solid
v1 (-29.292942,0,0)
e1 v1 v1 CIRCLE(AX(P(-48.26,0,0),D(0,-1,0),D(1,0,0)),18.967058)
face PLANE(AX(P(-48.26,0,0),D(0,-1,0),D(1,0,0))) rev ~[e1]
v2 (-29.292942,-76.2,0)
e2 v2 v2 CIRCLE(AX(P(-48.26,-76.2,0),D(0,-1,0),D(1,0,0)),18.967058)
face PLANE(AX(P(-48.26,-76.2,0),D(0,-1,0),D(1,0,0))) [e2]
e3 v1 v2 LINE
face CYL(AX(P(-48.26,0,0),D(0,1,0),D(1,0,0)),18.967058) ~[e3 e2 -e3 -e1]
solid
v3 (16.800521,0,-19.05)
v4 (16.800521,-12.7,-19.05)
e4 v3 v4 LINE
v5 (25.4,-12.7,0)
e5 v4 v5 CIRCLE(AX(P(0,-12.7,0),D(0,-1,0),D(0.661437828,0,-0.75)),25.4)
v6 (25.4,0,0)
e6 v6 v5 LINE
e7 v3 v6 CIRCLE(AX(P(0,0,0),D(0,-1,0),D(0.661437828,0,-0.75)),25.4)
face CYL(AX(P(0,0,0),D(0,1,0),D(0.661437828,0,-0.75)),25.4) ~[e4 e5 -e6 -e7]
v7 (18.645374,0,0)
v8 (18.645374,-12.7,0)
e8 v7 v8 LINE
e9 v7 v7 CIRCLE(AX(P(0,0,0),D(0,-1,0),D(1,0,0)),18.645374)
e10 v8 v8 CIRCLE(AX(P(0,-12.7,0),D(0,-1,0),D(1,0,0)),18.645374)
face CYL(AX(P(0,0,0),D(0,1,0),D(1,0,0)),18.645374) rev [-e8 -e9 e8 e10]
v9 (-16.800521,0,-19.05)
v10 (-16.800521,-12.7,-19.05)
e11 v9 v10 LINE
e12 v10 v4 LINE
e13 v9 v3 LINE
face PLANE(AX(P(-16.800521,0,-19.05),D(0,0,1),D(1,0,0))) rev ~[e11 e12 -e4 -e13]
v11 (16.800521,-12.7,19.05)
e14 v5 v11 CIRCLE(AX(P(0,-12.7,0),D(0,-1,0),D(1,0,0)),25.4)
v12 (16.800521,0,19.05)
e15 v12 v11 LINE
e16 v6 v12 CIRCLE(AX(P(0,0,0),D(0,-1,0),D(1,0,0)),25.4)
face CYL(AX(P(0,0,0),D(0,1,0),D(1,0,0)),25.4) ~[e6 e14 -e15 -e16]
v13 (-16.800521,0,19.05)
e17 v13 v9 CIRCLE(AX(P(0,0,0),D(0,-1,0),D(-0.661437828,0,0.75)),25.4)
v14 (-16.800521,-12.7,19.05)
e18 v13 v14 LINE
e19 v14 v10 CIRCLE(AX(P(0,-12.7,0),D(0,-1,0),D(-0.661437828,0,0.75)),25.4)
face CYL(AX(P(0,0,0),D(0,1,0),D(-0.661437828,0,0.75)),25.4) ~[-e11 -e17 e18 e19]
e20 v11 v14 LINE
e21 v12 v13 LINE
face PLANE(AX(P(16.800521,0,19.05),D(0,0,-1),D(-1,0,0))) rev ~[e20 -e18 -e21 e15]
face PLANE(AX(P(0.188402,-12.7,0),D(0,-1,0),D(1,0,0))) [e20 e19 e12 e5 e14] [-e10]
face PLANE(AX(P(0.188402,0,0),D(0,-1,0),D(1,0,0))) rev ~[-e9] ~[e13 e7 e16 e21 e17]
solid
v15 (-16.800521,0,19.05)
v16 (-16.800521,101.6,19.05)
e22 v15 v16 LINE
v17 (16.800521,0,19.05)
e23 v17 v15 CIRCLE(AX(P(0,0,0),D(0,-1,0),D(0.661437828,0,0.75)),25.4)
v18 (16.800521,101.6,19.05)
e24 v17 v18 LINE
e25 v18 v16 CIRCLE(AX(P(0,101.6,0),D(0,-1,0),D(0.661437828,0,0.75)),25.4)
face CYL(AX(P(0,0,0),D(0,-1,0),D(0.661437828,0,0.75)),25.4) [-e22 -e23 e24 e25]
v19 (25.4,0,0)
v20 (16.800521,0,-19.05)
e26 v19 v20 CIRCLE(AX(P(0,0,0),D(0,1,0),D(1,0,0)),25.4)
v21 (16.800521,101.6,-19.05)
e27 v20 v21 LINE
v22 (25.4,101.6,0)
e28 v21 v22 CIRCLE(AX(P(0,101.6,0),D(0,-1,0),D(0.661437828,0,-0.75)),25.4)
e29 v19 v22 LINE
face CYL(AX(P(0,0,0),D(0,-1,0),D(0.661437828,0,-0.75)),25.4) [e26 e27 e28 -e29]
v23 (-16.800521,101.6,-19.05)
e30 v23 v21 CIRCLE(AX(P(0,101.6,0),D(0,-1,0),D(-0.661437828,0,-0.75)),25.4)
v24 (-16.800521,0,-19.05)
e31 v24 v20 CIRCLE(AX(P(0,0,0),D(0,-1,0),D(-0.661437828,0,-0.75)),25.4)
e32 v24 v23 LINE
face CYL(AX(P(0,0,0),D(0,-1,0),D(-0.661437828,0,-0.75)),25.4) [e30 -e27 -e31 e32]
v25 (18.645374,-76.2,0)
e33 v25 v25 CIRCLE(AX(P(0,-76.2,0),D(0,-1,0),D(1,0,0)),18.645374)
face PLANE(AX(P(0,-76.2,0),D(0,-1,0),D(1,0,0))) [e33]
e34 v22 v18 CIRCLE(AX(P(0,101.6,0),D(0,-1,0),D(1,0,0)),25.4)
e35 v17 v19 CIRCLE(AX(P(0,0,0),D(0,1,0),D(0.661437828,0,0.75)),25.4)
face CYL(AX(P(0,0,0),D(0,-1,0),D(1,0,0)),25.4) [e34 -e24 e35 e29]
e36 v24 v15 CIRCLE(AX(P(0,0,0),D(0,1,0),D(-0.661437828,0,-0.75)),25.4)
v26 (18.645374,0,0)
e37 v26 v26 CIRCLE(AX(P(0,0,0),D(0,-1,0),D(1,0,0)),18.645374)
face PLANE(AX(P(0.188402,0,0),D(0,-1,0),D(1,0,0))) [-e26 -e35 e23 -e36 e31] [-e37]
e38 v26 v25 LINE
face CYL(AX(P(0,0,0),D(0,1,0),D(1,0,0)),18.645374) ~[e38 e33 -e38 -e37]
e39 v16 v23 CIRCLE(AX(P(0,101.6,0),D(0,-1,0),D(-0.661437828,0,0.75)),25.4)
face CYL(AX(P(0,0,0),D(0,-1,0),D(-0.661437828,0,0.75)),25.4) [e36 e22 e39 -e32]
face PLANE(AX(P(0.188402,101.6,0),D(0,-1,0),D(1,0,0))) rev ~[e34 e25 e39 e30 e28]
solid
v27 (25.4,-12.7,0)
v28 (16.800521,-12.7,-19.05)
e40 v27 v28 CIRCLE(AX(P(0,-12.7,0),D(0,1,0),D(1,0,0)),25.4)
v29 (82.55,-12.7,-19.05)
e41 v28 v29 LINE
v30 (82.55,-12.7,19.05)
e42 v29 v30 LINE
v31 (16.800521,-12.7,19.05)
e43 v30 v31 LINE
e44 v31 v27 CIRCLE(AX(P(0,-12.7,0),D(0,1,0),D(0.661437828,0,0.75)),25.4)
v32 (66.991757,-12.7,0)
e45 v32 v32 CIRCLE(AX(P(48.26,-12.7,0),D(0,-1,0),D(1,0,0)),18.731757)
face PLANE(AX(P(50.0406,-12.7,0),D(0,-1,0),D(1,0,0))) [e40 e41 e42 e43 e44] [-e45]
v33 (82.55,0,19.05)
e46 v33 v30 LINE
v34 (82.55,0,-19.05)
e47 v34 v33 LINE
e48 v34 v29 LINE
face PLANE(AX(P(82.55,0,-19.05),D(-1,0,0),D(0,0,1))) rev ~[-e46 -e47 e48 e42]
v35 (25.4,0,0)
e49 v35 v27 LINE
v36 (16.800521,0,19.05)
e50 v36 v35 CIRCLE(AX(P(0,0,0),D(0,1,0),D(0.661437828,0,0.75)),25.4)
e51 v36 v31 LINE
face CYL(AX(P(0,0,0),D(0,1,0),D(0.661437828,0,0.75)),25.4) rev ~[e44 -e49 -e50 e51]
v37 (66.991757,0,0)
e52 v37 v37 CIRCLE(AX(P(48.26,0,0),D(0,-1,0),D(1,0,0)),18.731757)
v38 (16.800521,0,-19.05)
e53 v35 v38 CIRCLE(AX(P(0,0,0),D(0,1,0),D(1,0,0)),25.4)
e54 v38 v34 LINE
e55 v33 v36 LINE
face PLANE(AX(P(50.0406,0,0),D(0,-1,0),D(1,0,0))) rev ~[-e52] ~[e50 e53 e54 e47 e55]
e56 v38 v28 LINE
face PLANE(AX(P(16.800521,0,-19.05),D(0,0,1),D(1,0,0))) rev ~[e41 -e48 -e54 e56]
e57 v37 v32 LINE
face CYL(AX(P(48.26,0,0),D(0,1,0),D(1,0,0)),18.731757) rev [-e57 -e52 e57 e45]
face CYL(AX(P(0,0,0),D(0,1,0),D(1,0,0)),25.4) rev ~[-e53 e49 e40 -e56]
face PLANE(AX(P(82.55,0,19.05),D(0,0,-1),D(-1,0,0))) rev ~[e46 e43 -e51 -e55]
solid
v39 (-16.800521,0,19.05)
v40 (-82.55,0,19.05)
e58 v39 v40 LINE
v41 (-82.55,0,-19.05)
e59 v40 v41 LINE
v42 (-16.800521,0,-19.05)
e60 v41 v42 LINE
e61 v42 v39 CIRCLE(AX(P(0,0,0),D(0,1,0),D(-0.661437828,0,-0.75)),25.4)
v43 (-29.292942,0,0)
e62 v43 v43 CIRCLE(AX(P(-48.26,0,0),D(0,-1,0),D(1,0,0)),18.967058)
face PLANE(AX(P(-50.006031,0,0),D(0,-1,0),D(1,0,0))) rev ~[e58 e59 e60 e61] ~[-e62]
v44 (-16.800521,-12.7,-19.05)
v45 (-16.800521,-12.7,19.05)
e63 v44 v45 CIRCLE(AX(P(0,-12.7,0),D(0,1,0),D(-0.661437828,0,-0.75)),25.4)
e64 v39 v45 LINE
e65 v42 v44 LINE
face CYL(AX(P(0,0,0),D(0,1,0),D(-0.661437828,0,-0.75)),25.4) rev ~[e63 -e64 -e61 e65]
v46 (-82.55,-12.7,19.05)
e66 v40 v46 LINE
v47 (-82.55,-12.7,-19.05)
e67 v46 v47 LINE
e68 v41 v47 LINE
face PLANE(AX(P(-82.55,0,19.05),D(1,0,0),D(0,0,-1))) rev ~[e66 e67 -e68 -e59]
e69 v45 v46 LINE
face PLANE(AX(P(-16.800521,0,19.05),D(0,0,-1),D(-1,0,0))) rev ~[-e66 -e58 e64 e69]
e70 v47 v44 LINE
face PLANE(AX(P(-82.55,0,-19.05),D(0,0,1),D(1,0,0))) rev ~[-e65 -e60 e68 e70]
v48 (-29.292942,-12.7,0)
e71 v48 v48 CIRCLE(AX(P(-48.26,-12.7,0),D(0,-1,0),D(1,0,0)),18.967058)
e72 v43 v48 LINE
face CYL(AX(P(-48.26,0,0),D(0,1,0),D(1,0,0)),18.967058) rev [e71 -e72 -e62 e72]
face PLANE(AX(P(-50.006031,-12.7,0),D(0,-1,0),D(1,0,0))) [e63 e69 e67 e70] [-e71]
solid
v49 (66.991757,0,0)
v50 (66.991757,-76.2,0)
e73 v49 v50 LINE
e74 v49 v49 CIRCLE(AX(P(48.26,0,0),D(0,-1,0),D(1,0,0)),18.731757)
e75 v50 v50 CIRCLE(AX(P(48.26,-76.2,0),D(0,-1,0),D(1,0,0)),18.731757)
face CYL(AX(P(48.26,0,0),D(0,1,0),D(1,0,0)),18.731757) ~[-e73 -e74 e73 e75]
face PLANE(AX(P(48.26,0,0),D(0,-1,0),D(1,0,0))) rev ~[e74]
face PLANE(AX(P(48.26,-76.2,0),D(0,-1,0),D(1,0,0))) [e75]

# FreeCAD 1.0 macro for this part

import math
import FreeCAD as App
import Part
import Sketcher
from FreeCAD import Vector
Q = App.Units.Quantity

doc = App.newDocument("Part")
params = doc.addObject("Spreadsheet::Sheet", "Params")
for row, (alias, value) in enumerate([
    ("pad1_length", "3 in"),
    ("pad2_length", "3 in"),
    ("pad3_length", "3 in"),
    ("sketch4_radius", "1 in"),
    ("sketch4_height", "1.5 in"),
    ("pad4_length", "0.5 in"),
    ("sketch5_radius", "1 in"),
    ("sketch5_height", "1.5 in"),
    ("pad5_length", "0.5 in"),
    ("sketch6_radius", "1 in"),
    ("pad6_length", "4 in"),
    ("sketch7_radius", "1 in"),
    ("pad7_length", "0.5 in"),
], start=1):
    params.set(f"A{row}", alias)
    params.set(f"B{row}", "=" + value)
    params.setAlias(f"B{row}", alias)

body = doc.addObject("PartDesign::Body", "Body")

sketch1 = body.newObject("Sketcher::SketchObject", "Sketch")
sketch1.AttachmentSupport = (doc.getObject("XZ_Plane"), [""])
sketch1.MapMode = "FlatFace"
sketch1.addGeometry(Part.Circle(Vector(0, 0, 0), Vector(0, 0, 1), 19), False)
sketch1.addConstraint(Sketcher.Constraint("Coincident", 0, 3, -1, 1))
sketch1.addConstraint(Sketcher.Constraint("Diameter", 0, Q("37.290749 mm")))
pad1 = body.newObject("PartDesign::Pad", "Pad")
pad1.Profile = sketch1
pad1.setExpression("Length", "Params.pad1_length")
body2 = doc.addObject("PartDesign::Body", "Body001")

sketch2 = body2.newObject("Sketcher::SketchObject", "Sketch001")
sketch2.AttachmentSupport = (doc.getObject("XZ_Plane001"), [""])
sketch2.MapMode = "FlatFace"
sketch2.addGeometry(Part.Circle(Vector(-48, 0, 0), Vector(0, 0, 1), 19), False)
sketch2.addConstraint(Sketcher.Constraint("PointOnObject", 0, 3, -1))
sketch2.addConstraint(Sketcher.Constraint("DistanceX", 0, 3, -1, 1, Q("1.9 in")))
sketch2.addConstraint(Sketcher.Constraint("Diameter", 0, Q("37.934115 mm")))
pad2 = body2.newObject("PartDesign::Pad", "Pad001")
pad2.Profile = sketch2
pad2.setExpression("Length", "Params.pad2_length")
body3 = doc.addObject("PartDesign::Body", "Body002")

sketch3 = body3.newObject("Sketcher::SketchObject", "Sketch002")
sketch3.AttachmentSupport = (doc.getObject("XZ_Plane002"), [""])
sketch3.MapMode = "FlatFace"
sketch3.addGeometry(Part.Circle(Vector(48, 0, 0), Vector(0, 0, 1), 19), False)
sketch3.addConstraint(Sketcher.Constraint("PointOnObject", 0, 3, -1))
sketch3.addConstraint(Sketcher.Constraint("DistanceX", -1, 1, 0, 3, Q("1.9 in")))
sketch3.addConstraint(Sketcher.Constraint("Diameter", 0, Q("37.463514 mm")))
pad3 = body3.newObject("PartDesign::Pad", "Pad002")
pad3.Profile = sketch3
pad3.setExpression("Length", "Params.pad3_length")
body4 = doc.addObject("PartDesign::Body", "Body003")

sketch4 = body4.newObject("Sketcher::SketchObject", "Sketch003")
sketch4.AttachmentSupport = (doc.getObject("XZ_Plane003"), [""])
sketch4.MapMode = "FlatFace"
sketch4.addGeometry(Part.LineSegment(Vector(17, -19, 0), Vector(83, -19, 0)), False)
sketch4.addGeometry(Part.LineSegment(Vector(83, -19, 0), Vector(83, 19, 0)), False)
sketch4.addGeometry(Part.LineSegment(Vector(83, 19, 0), Vector(17, 19, 0)), False)
sketch4.addGeometry(Part.ArcOfCircle(Part.Circle(Vector(0, 0, 0), Vector(0, 0, 1), 25), math.radians(0), math.radians(49)), False)
sketch4.addGeometry(Part.ArcOfCircle(Part.Circle(Vector(0, 0, 0), Vector(0, 0, 1), 25), math.radians(-49), math.radians(0)), False)
sketch4.addGeometry(Part.Circle(Vector(48, 0, 0), Vector(0, 0, 1), 19), False)
sketch4.addConstraint(Sketcher.Constraint("Coincident", 0, 2, 1, 1))
sketch4.addConstraint(Sketcher.Constraint("Coincident", 1, 2, 2, 1))
sketch4.addConstraint(Sketcher.Constraint("Coincident", 2, 2, 3, 2))
sketch4.addConstraint(Sketcher.Constraint("Tangent", 3, 1, 4, 2))
sketch4.addConstraint(Sketcher.Constraint("Coincident", 4, 1, 0, 1))
sketch4.addConstraint(Sketcher.Constraint("Horizontal", 0))
sketch4.addConstraint(Sketcher.Constraint("Vertical", 1))
sketch4.addConstraint(Sketcher.Constraint("Horizontal", 2))
sketch4.addConstraint(Sketcher.Constraint("Coincident", 3, 3, -1, 1))
sketch4.addConstraint(Sketcher.Constraint("Equal", 3, 4))
sketch4.addConstraint(Sketcher.Constraint("PointOnObject", 5, 3, -1))
sketch4.addConstraint(Sketcher.Constraint("PointOnObject", 3, 1, -1))
sketch4.addConstraint(Sketcher.Constraint("Vertical", 2, 2, 4, 1))
sketch4.addConstraint(Sketcher.Constraint("Radius", 3, Q("1 in")))
sketch4.addConstraint(Sketcher.Constraint("DistanceY", 1, 1, 1, 2, Q("1.5 in")))
sketch4.addConstraint(Sketcher.Constraint("DistanceX", -1, 1, 5, 3, Q("1.9 in")))
sketch4.addConstraint(Sketcher.Constraint("DistanceX", -1, 1, 0, 2, Q("3.25 in")))
sketch4.addConstraint(Sketcher.Constraint("Diameter", 5, Q("37.463514 mm")))
sketch4.setExpression("Constraints[13]", "Params.sketch4_radius")
sketch4.setExpression("Constraints[14]", "Params.sketch4_height")
pad4 = body4.newObject("PartDesign::Pad", "Pad003")
pad4.Profile = sketch4
pad4.setExpression("Length", "Params.pad4_length")
body5 = doc.addObject("PartDesign::Body", "Body004")

sketch5 = body5.newObject("Sketcher::SketchObject", "Sketch004")
sketch5.AttachmentSupport = (doc.getObject("XZ_Plane004"), [""])
sketch5.MapMode = "FlatFace"
sketch5.addGeometry(Part.LineSegment(Vector(-83, -19, 0), Vector(-17, -19, 0)), False)
sketch5.addGeometry(Part.ArcOfCircle(Part.Circle(Vector(0, 0, 0), Vector(0, 0, 1), 25), math.radians(131), math.radians(229)), False)
sketch5.addGeometry(Part.LineSegment(Vector(-17, 19, 0), Vector(-83, 19, 0)), False)
sketch5.addGeometry(Part.LineSegment(Vector(-83, 19, 0), Vector(-83, -19, 0)), False)
sketch5.addGeometry(Part.Circle(Vector(-48, 0, 0), Vector(0, 0, 1), 19), False)
sketch5.addConstraint(Sketcher.Constraint("Coincident", 0, 2, 1, 2))
sketch5.addConstraint(Sketcher.Constraint("Coincident", 1, 1, 2, 1))
sketch5.addConstraint(Sketcher.Constraint("Coincident", 2, 2, 3, 1))
sketch5.addConstraint(Sketcher.Constraint("Coincident", 3, 2, 0, 1))
sketch5.addConstraint(Sketcher.Constraint("Horizontal", 0))
sketch5.addConstraint(Sketcher.Constraint("Horizontal", 2))
sketch5.addConstraint(Sketcher.Constraint("Vertical", 3))
sketch5.addConstraint(Sketcher.Constraint("Coincident", 1, 3, -1, 1))
sketch5.addConstraint(Sketcher.Constraint("PointOnObject", 4, 3, -1))
sketch5.addConstraint(Sketcher.Constraint("Vertical", 0, 2, 1, 1))
sketch5.addConstraint(Sketcher.Constraint("Radius", 1, Q("1 in")))
sketch5.addConstraint(Sketcher.Constraint("DistanceY", 3, 2, 3, 1, Q("1.5 in")))
sketch5.addConstraint(Sketcher.Constraint("DistanceX", 4, 3, -1, 1, Q("1.9 in")))
sketch5.addConstraint(Sketcher.Constraint("DistanceX", 2, 2, -1, 1, Q("3.25 in")))
sketch5.addConstraint(Sketcher.Constraint("Diameter", 4, Q("37.934115 mm")))
sketch5.setExpression("Constraints[10]", "Params.sketch5_radius")
sketch5.setExpression("Constraints[11]", "Params.sketch5_height")
pad5 = body5.newObject("PartDesign::Pad", "Pad004")
pad5.Profile = sketch5
pad5.setExpression("Length", "Params.pad5_length")
body.AllowCompound = True
doc.recompute()

boolean = body.newObject("PartDesign::Boolean", "Boolean")
boolean.Type = "Fuse"
boolean.addObjects([body4])
doc.recompute()

boolean2 = body.newObject("PartDesign::Boolean", "Boolean001")
boolean2.Type = "Fuse"
boolean2.addObjects([body5])

sketch6 = body.newObject("Sketcher::SketchObject", "Sketch005")
sketch6.AttachmentSupport = (doc.getObject("XZ_Plane"), [""])
sketch6.MapMode = "FlatFace"
sketch6.addGeometry(Part.ArcOfCircle(Part.Circle(Vector(0, 0, 0), Vector(0, 0, 1), 25), math.radians(-49), math.radians(0)), False)
sketch6.addGeometry(Part.ArcOfCircle(Part.Circle(Vector(0, 0, 0), Vector(0, 0, 1), 25), math.radians(0), math.radians(49)), False)
sketch6.addGeometry(Part.ArcOfCircle(Part.Circle(Vector(0, 0, 0), Vector(0, 0, 1), 25), math.radians(49), math.radians(131)), False)
sketch6.addGeometry(Part.ArcOfCircle(Part.Circle(Vector(0, 0, 0), Vector(0, 0, 1), 25), math.radians(131), math.radians(229)), False)
sketch6.addGeometry(Part.ArcOfCircle(Part.Circle(Vector(0, 0, 0), Vector(0, 0, 1), 25), math.radians(-131), math.radians(-49)), False)
sketch6.addConstraint(Sketcher.Constraint("Tangent", 0, 2, 1, 1))
sketch6.addConstraint(Sketcher.Constraint("Tangent", 1, 2, 2, 1))
sketch6.addConstraint(Sketcher.Constraint("Tangent", 2, 2, 3, 1))
sketch6.addConstraint(Sketcher.Constraint("Tangent", 3, 2, 4, 1))
sketch6.addConstraint(Sketcher.Constraint("Tangent", 4, 2, 0, 1))
sketch6.addConstraint(Sketcher.Constraint("Coincident", 0, 3, -1, 1))
sketch6.addConstraint(Sketcher.Constraint("Coincident", 2, 3, -1, 1))
sketch6.addConstraint(Sketcher.Constraint("PointOnObject", 0, 2, -1))
sketch6.addConstraint(Sketcher.Constraint("Horizontal", 1, 2, 2, 2))
sketch6.addConstraint(Sketcher.Constraint("Horizontal", 3, 2, 4, 2))
sketch6.addConstraint(Sketcher.Constraint("Vertical", 2, 2, 3, 2))
sketch6.addConstraint(Sketcher.Constraint("Radius", 0, Q("1 in")))
sketch6.addConstraint(Sketcher.Constraint("DistanceY", -1, 1, 1, 2, Q("0.75 in")))
sketch6.setExpression("Constraints[11]", "Params.sketch6_radius")
pad6 = body.newObject("PartDesign::Pad", "Pad005")
pad6.Profile = sketch6
pad6.setExpression("Length", "Params.pad6_length")
pad6.Reversed = True
body6 = doc.addObject("PartDesign::Body", "Body005")

sketch7 = body6.newObject("Sketcher::SketchObject", "Sketch006")
sketch7.AttachmentSupport = (doc.getObject("XZ_Plane005"), [""])
sketch7.MapMode = "FlatFace"
sketch7.addGeometry(Part.LineSegment(Vector(-17, -19, 0), Vector(17, -19, 0)), False)
sketch7.addGeometry(Part.ArcOfCircle(Part.Circle(Vector(0, 0, 0), Vector(0, 0, 1), 25), math.radians(-49), math.radians(0)), False)
sketch7.addGeometry(Part.ArcOfCircle(Part.Circle(Vector(0, 0, 0), Vector(0, 0, 1), 25), math.radians(0), math.radians(49)), False)
sketch7.addGeometry(Part.LineSegment(Vector(17, 19, 0), Vector(-17, 19, 0)), False)
sketch7.addGeometry(Part.ArcOfCircle(Part.Circle(Vector(0, 0, 0), Vector(0, 0, 1), 25), math.radians(131), math.radians(229)), False)
sketch7.addGeometry(Part.Circle(Vector(0, 0, 0), Vector(0, 0, 1), 19), False)
sketch7.addConstraint(Sketcher.Constraint("Coincident", 0, 2, 1, 1))
sketch7.addConstraint(Sketcher.Constraint("Tangent", 1, 2, 2, 1))
sketch7.addConstraint(Sketcher.Constraint("Coincident", 2, 2, 3, 1))
sketch7.addConstraint(Sketcher.Constraint("Coincident", 3, 2, 4, 1))
sketch7.addConstraint(Sketcher.Constraint("Coincident", 4, 2, 0, 1))
sketch7.addConstraint(Sketcher.Constraint("Horizontal", 0))
sketch7.addConstraint(Sketcher.Constraint("Horizontal", 3))
sketch7.addConstraint(Sketcher.Constraint("Coincident", 1, 3, -1, 1))
sketch7.addConstraint(Sketcher.Constraint("Coincident", 4, 3, -1, 1))
sketch7.addConstraint(Sketcher.Constraint("Coincident", 5, 3, -1, 1))
sketch7.addConstraint(Sketcher.Constraint("Equal", 1, 2))
sketch7.addConstraint(Sketcher.Constraint("Equal", 2, 4))
sketch7.addConstraint(Sketcher.Constraint("PointOnObject", 1, 2, -1))
sketch7.addConstraint(Sketcher.Constraint("Vertical", 0, 2, 2, 2))
sketch7.addConstraint(Sketcher.Constraint("Radius", 1, Q("1 in")))
sketch7.addConstraint(Sketcher.Constraint("DistanceY", 0, 2, -1, 1, Q("0.75 in")))
sketch7.addConstraint(Sketcher.Constraint("Diameter", 5, Q("37.290749 mm")))
sketch7.setExpression("Constraints[14]", "Params.sketch7_radius")
pad7 = body6.newObject("PartDesign::Pad", "Pad006")
pad7.Profile = sketch7
pad7.setExpression("Length", "Params.pad7_length")

doc.recompute()
